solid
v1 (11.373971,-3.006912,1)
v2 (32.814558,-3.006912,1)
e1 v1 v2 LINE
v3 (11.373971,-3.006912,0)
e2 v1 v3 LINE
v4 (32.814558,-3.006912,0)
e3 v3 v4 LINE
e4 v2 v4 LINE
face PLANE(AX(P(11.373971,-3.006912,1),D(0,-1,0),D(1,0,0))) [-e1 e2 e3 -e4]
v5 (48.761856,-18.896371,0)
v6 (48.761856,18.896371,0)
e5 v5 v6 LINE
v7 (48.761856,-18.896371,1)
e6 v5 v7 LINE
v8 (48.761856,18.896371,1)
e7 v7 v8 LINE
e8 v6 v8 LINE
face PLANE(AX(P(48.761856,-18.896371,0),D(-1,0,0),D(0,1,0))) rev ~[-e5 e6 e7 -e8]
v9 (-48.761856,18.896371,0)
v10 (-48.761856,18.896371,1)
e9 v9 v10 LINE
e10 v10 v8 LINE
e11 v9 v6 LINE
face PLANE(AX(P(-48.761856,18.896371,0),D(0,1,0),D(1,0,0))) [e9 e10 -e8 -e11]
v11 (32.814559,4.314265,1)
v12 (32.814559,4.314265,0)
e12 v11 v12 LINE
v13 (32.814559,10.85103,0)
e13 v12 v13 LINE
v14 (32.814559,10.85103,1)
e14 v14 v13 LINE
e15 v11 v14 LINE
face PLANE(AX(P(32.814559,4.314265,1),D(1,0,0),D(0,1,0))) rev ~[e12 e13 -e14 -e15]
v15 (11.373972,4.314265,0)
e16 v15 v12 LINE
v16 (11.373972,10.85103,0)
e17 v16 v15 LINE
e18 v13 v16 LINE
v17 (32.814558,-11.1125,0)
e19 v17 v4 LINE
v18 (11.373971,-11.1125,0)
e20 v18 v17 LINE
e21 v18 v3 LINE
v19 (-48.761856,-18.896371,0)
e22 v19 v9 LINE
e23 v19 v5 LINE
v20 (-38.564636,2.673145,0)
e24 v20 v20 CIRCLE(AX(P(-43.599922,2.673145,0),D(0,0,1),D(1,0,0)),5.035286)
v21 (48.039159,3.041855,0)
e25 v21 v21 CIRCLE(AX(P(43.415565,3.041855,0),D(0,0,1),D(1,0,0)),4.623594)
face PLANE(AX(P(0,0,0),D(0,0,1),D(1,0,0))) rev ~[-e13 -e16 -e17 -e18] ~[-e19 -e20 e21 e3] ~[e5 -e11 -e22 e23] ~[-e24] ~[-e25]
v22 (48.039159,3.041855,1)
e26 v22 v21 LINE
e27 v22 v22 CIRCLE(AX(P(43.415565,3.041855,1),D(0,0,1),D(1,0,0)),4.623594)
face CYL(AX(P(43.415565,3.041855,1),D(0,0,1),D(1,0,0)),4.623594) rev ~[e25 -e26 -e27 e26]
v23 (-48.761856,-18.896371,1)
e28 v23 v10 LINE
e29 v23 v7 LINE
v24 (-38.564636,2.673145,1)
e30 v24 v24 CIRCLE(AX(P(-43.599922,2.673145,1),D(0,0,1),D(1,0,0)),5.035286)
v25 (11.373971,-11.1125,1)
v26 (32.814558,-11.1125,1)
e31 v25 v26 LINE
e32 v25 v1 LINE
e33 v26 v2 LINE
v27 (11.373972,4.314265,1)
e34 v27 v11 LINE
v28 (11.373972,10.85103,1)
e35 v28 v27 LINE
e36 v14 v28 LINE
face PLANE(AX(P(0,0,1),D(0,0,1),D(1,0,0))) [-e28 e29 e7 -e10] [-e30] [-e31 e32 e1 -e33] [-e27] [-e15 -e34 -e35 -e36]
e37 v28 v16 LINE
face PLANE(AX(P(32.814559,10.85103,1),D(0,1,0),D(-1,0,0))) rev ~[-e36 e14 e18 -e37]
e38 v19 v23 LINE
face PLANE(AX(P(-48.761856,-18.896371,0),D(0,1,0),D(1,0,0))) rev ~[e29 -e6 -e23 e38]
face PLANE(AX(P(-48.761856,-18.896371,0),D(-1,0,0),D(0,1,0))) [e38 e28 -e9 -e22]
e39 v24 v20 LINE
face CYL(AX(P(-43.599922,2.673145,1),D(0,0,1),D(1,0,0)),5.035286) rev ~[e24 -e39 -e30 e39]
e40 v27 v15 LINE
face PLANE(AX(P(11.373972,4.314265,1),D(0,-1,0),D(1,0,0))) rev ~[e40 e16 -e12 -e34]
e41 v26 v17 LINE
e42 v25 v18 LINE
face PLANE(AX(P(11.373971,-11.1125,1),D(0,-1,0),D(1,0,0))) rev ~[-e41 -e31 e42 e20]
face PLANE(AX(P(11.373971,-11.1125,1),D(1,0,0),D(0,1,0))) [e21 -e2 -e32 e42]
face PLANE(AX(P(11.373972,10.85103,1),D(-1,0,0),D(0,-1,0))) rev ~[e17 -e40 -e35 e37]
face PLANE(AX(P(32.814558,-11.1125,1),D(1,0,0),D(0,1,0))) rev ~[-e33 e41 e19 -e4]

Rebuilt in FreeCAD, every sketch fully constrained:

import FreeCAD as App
import Part
import Sketcher

doc = App.newDocument("Part")
body = doc.addObject("PartDesign::Body", "Body")

sketch1 = body.newObject("Sketcher::SketchObject", "Sketch")
sketch1.AttachmentSupport = (doc.getObject("XY_Plane"), [""])
sketch1.MapMode = "FlatFace"
sketch1.addGeometry([
    Part.LineSegment(App.Vector(-49, 19, 0), App.Vector(-49, -19, 0)),
    Part.LineSegment(App.Vector(-49, -19, 0), App.Vector(49, -19, 0)),
    Part.LineSegment(App.Vector(49, -19, 0), App.Vector(49, 19, 0)),
    Part.LineSegment(App.Vector(49, 19, 0), App.Vector(-49, 19, 0)),
], False)
sketch1.addConstraint([
    Sketcher.Constraint("Coincident", 0, 2, 1, 1),
    Sketcher.Constraint("Coincident", 1, 2, 2, 1),
    Sketcher.Constraint("Coincident", 2, 2, 3, 1),
    Sketcher.Constraint("Coincident", 3, 2, 0, 1),
    Sketcher.Constraint("Vertical", 0),
    Sketcher.Constraint("Horizontal", 1),
    Sketcher.Constraint("Vertical", 2),
    Sketcher.Constraint("Horizontal", 3),
    Sketcher.Constraint("Symmetric", 0, 2, 2, 2, -1, 1),
    Sketcher.Constraint("DistanceY", 0, 2, 0, 1, 37.792742),
    Sketcher.Constraint("DistanceX", 1, 1, 1, 2, 97.523712),
])
pad1 = body.newObject("PartDesign::Pad", "Pad")
pad1.Profile = sketch1
pad1.Length = 1

sketch2 = body.newObject("Sketcher::SketchObject", "Sketch001")
sketch2.AttachmentSupport = (doc.getObject("XY_Plane"), [""])
sketch2.MapMode = "FlatFace"
sketch2.AttachmentOffset = App.Placement(App.Vector(0, 0, 1), App.Rotation())
sketch2.addGeometry([
    Part.Circle(App.Vector(43.4, 3, 0), App.Vector(0, 0, 1), 4.6),
    Part.Circle(App.Vector(-43.6, 2.7, 0), App.Vector(0, 0, 1), 5),
], False)
sketch2.addConstraint([
    Sketcher.Constraint("Diameter", 0, 9.247188),
    Sketcher.Constraint("Diameter", 1, 10.070572),
    Sketcher.Constraint("DistanceY", 1, 3, 0, 3, 0.36871),
    Sketcher.Constraint("DistanceX", -1, 1, 0, 3, 43.415565),
    Sketcher.Constraint("DistanceY", -1, 1, 0, 3, 3.041855),
    Sketcher.Constraint("DistanceX", 1, 3, -1, 1, 43.599922),
])
pocket1 = body.newObject("PartDesign::Pocket", "Pocket")
pocket1.Profile = sketch2
pocket1.Length = 25.4

sketch3 = body.newObject("Sketcher::SketchObject", "Sketch002")
sketch3.AttachmentSupport = (doc.getObject("XY_Plane"), [""])
sketch3.MapMode = "FlatFace"
sketch3.AttachmentOffset = App.Placement(App.Vector(0, 0, 1), App.Rotation())
sketch3.addGeometry([
    Part.LineSegment(App.Vector(33, 4, 0), App.Vector(33, 11, 0)),
    Part.LineSegment(App.Vector(33, 11, 0), App.Vector(11, 11, 0)),
    Part.LineSegment(App.Vector(11, 11, 0), App.Vector(11, 4, 0)),
    Part.LineSegment(App.Vector(11, 4, 0), App.Vector(33, 4, 0)),
    Part.LineSegment(App.Vector(11, -3, 0), App.Vector(11, -11, 0)),
    Part.LineSegment(App.Vector(11, -11, 0), App.Vector(33, -11, 0)),
    Part.LineSegment(App.Vector(33, -11, 0), App.Vector(33, -3, 0)),
    Part.LineSegment(App.Vector(33, -3, 0), App.Vector(11, -3, 0)),
], False)
sketch3.addConstraint([
    Sketcher.Constraint("Coincident", 0, 2, 1, 1),
    Sketcher.Constraint("Coincident", 1, 2, 2, 1),
    Sketcher.Constraint("Coincident", 2, 2, 3, 1),
    Sketcher.Constraint("Coincident", 3, 2, 0, 1),
    Sketcher.Constraint("Coincident", 4, 2, 5, 1),
    Sketcher.Constraint("Coincident", 5, 2, 6, 1),
    Sketcher.Constraint("Coincident", 6, 2, 7, 1),
    Sketcher.Constraint("Coincident", 7, 2, 4, 1),
    Sketcher.Constraint("Vertical", 0),
    Sketcher.Constraint("Horizontal", 1),
    Sketcher.Constraint("Vertical", 2),
    Sketcher.Constraint("Horizontal", 3),
    Sketcher.Constraint("Vertical", 4),
    Sketcher.Constraint("Horizontal", 5),
    Sketcher.Constraint("Vertical", 6),
    Sketcher.Constraint("Horizontal", 7),
    Sketcher.Constraint("Vertical", 2, 2, 4, 2),
    Sketcher.Constraint("Vertical", 3, 2, 5, 2),
    Sketcher.Constraint("DistanceY", 4, 2, 4, 1, 8.105589),
    Sketcher.Constraint("DistanceY", 4, 2, -1, 1, 11.1125),
    Sketcher.Constraint("DistanceX", 1, 2, 1, 1, 21.440587),
    Sketcher.Constraint("DistanceY", 0, 1, 0, 2, 6.536765),
    Sketcher.Constraint("DistanceX", -1, 1, 0, 2, 32.814559),
    Sketcher.Constraint("DistanceY", -1, 1, 0, 2, 10.85103),
])
pocket2 = body.newObject("PartDesign::Pocket", "Pocket001")
pocket2.Profile = sketch3
pocket2.Length = 25.4

doc.recompute()
